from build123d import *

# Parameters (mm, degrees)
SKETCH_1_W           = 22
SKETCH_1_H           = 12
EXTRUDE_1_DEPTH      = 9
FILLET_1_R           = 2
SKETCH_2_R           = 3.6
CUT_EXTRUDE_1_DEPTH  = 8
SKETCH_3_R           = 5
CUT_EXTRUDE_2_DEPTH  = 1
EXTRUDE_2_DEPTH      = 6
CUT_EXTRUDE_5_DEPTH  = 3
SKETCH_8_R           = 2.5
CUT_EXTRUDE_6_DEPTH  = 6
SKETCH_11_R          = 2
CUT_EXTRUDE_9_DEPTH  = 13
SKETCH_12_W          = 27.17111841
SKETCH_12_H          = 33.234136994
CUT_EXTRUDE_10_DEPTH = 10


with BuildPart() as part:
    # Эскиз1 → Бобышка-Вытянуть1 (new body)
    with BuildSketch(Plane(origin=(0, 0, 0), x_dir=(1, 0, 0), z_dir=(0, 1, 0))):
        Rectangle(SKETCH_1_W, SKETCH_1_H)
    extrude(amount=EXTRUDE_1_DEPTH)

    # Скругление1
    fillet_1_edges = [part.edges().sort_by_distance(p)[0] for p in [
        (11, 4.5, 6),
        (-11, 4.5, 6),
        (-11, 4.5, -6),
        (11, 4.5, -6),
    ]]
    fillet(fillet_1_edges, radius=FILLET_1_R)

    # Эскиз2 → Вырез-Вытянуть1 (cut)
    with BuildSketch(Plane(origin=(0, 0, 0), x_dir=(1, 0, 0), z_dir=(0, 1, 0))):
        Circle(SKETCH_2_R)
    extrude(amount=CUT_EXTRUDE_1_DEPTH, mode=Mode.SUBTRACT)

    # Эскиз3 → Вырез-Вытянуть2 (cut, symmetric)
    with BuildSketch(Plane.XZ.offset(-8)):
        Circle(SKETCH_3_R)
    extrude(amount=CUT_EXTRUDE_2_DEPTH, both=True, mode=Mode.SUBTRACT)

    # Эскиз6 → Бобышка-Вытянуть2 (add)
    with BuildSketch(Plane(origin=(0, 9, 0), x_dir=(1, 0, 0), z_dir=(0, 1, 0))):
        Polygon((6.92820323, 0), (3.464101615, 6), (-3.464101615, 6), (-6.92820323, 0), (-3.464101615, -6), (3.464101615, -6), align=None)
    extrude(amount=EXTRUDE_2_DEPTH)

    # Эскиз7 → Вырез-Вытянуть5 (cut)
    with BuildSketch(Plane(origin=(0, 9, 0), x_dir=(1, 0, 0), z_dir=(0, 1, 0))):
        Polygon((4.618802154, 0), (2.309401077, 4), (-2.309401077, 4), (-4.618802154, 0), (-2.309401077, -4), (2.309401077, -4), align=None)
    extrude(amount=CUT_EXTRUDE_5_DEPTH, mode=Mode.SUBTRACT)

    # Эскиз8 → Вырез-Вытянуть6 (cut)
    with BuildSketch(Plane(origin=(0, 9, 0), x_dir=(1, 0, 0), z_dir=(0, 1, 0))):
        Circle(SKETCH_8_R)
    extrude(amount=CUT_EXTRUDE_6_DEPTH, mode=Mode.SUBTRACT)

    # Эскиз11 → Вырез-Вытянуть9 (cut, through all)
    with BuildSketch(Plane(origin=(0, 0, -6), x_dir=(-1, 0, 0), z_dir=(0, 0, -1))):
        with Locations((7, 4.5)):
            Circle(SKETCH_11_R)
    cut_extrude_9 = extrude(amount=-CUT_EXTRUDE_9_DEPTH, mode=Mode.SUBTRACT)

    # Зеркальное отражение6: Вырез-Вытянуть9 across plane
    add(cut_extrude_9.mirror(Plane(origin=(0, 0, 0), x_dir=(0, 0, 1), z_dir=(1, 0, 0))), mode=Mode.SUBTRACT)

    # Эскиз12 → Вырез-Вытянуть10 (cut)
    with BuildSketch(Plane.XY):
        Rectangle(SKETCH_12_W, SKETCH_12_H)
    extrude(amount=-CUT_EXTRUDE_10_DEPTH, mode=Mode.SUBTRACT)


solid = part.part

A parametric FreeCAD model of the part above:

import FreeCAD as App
import Part
import Sketcher
from FreeCAD import Vector
Q = App.Units.Quantity


def edges_at(feature, points):
    """Names of the edges that pass closest to the given points."""
    edges = feature.Shape.Edges
    near = lambda p: min(range(len(edges)), key=lambda i: edges[i].distToShape(Part.Vertex(*p))[0])
    return sorted({f"Edge{near(p) + 1}" for p in points})

doc = App.newDocument("Part")
body = doc.addObject("PartDesign::Body", "Body")

sketch1 = doc.addObject("Sketcher::SketchObject", "Sketch")
body.addObject(sketch1)
sketch1.AttachmentSupport = (doc.XZ_Plane, [""])
sketch1.MapMode = "FlatFace"
sketch1.addGeometry(Part.LineSegment(Vector(-11, -6, 0), Vector(-11, 6, 0)), False)
sketch1.addGeometry(Part.LineSegment(Vector(-11, 6, 0), Vector(11, 6, 0)), False)
sketch1.addGeometry(Part.LineSegment(Vector(11, 6, 0), Vector(11, -6, 0)), False)
sketch1.addGeometry(Part.LineSegment(Vector(11, -6, 0), Vector(-11, -6, 0)), False)
sketch1.addConstraint(Sketcher.Constraint("Coincident", 0, 2, 1, 1))
sketch1.addConstraint(Sketcher.Constraint("Coincident", 1, 2, 2, 1))
sketch1.addConstraint(Sketcher.Constraint("Coincident", 2, 2, 3, 1))
sketch1.addConstraint(Sketcher.Constraint("Coincident", 3, 2, 0, 1))
sketch1.addConstraint(Sketcher.Constraint("Vertical", 0))
sketch1.addConstraint(Sketcher.Constraint("Horizontal", 1))
sketch1.addConstraint(Sketcher.Constraint("Vertical", 2))
sketch1.addConstraint(Sketcher.Constraint("Horizontal", 3))
sketch1.addConstraint(Sketcher.Constraint("Symmetric", 0, 2, 2, 2, -1, 1))
sketch1.addConstraint(Sketcher.Constraint("DistanceX", 1, 1, 1, 2, 22.0))
sketch1.addConstraint(Sketcher.Constraint("DistanceY", 0, 1, 0, 2, 12.0))
pad1 = doc.addObject("PartDesign::Pad", "Pad")
body.addObject(pad1)
pad1.Profile = sketch1
pad1.Length = 9
pad1.Reversed = True
doc.recompute()

fillet = doc.addObject("PartDesign::Fillet", "Fillet")
body.addObject(fillet)
fillet.Base = (pad1, edges_at(pad1, [
    (11, 4.5, 6),
    (-11, 4.5, 6),
    (-11, 4.5, -6),
    (11, 4.5, -6),
]))
fillet.Radius = 2

sketch2 = doc.addObject("Sketcher::SketchObject", "Sketch001")
body.addObject(sketch2)
sketch2.AttachmentSupport = (doc.XZ_Plane, [""])
sketch2.MapMode = "FlatFace"
sketch2.addGeometry(Part.Circle(Vector(0, 0, 0), Vector(0, 0, 1), 3.6), False)
sketch2.addConstraint(Sketcher.Constraint("Coincident", 0, 3, -1, 1))
sketch2.addConstraint(Sketcher.Constraint("Diameter", 0, 7.2))
pocket1 = doc.addObject("PartDesign::Pocket", "Pocket")
body.addObject(pocket1)
pocket1.Profile = sketch2
pocket1.Length = 8

sketch3 = doc.addObject("Sketcher::SketchObject", "Sketch002")
body.addObject(sketch3)
sketch3.AttachmentSupport = (doc.XZ_Plane, [""])
sketch3.MapMode = "FlatFace"
sketch3.AttachmentOffset = App.Placement(Vector(0, 0, -8), App.Rotation())
sketch3.addGeometry(Part.Circle(Vector(0, 0, 0), Vector(0, 0, 1), 5), False)
sketch3.addConstraint(Sketcher.Constraint("Coincident", 0, 3, -1, 1))
sketch3.addConstraint(Sketcher.Constraint("Diameter", 0, 10.0))
pocket2 = doc.addObject("PartDesign::Pocket", "Pocket001")
body.addObject(pocket2)
pocket2.Profile = sketch3
pocket2.Length = 2
pocket2.Midplane = True

sketch4 = doc.addObject("Sketcher::SketchObject", "Sketch003")
body.addObject(sketch4)
sketch4.AttachmentSupport = (doc.XZ_Plane, [""])
sketch4.MapMode = "FlatFace"
sketch4.AttachmentOffset = App.Placement(Vector(0, 0, -9), App.Rotation())
sketch4.addGeometry(Part.LineSegment(Vector(7, 0, 0), Vector(3, -6, 0)), False)
sketch4.addGeometry(Part.LineSegment(Vector(3, -6, 0), Vector(-3, -6, 0)), False)
sketch4.addGeometry(Part.LineSegment(Vector(-3, -6, 0), Vector(-7, 0, 0)), False)
sketch4.addGeometry(Part.LineSegment(Vector(-7, 0, 0), Vector(-3, 6, 0)), False)
sketch4.addGeometry(Part.LineSegment(Vector(-3, 6, 0), Vector(3, 6, 0)), False)
sketch4.addGeometry(Part.LineSegment(Vector(3, 6, 0), Vector(7, 0, 0)), False)
sketch4.addConstraint(Sketcher.Constraint("Coincident", 0, 2, 1, 1))
sketch4.addConstraint(Sketcher.Constraint("Coincident", 1, 2, 2, 1))
sketch4.addConstraint(Sketcher.Constraint("Coincident", 2, 2, 3, 1))
sketch4.addConstraint(Sketcher.Constraint("Coincident", 3, 2, 4, 1))
sketch4.addConstraint(Sketcher.Constraint("Coincident", 4, 2, 5, 1))
sketch4.addConstraint(Sketcher.Constraint("Coincident", 5, 2, 0, 1))
sketch4.addConstraint(Sketcher.Constraint("Horizontal", 1))
sketch4.addConstraint(Sketcher.Constraint("Horizontal", 4))
sketch4.addConstraint(Sketcher.Constraint("Symmetric", 0, 2, 3, 2, -1, 1))
sketch4.addConstraint(Sketcher.Constraint("Symmetric", 2, 2, 5, 2, -1, 1))
sketch4.addConstraint(Sketcher.Constraint("PointOnObject", 2, 2, -1))
sketch4.addConstraint(Sketcher.Constraint("Parallel", 2, 5))
sketch4.addConstraint(Sketcher.Constraint("Vertical", 1, 2, 3, 2))
sketch4.addConstraint(Sketcher.Constraint("Angle", 0, Q("-120 deg")))
sketch4.addConstraint(Sketcher.Constraint("DistanceY", 0, 2, -1, 1, 6.0))
sketch4.addConstraint(Sketcher.Constraint("DistanceX", -1, 1, 0, 2, 3.464102))
pad2 = doc.addObject("PartDesign::Pad", "Pad001")
body.addObject(pad2)
pad2.Profile = sketch4
pad2.Length = 6
pad2.Reversed = True

sketch5 = doc.addObject("Sketcher::SketchObject", "Sketch004")
body.addObject(sketch5)
sketch5.AttachmentSupport = (doc.XZ_Plane, [""])
sketch5.MapMode = "FlatFace"
sketch5.AttachmentOffset = App.Placement(Vector(0, 0, -9), App.Rotation())
sketch5.addGeometry(Part.LineSegment(Vector(4.6, 0, 0), Vector(2.3, -4, 0)), False)
sketch5.addGeometry(Part.LineSegment(Vector(2.3, -4, 0), Vector(-2.3, -4, 0)), False)
sketch5.addGeometry(Part.LineSegment(Vector(-2.3, -4, 0), Vector(-4.6, 0, 0)), False)
sketch5.addGeometry(Part.LineSegment(Vector(-4.6, 0, 0), Vector(-2.3, 4, 0)), False)
sketch5.addGeometry(Part.LineSegment(Vector(-2.3, 4, 0), Vector(2.3, 4, 0)), False)
sketch5.addGeometry(Part.LineSegment(Vector(2.3, 4, 0), Vector(4.6, 0, 0)), False)
sketch5.addConstraint(Sketcher.Constraint("Coincident", 0, 2, 1, 1))
sketch5.addConstraint(Sketcher.Constraint("Coincident", 1, 2, 2, 1))
sketch5.addConstraint(Sketcher.Constraint("Coincident", 2, 2, 3, 1))
sketch5.addConstraint(Sketcher.Constraint("Coincident", 3, 2, 4, 1))
sketch5.addConstraint(Sketcher.Constraint("Coincident", 4, 2, 5, 1))
sketch5.addConstraint(Sketcher.Constraint("Coincident", 5, 2, 0, 1))
sketch5.addConstraint(Sketcher.Constraint("Horizontal", 1))
sketch5.addConstraint(Sketcher.Constraint("Horizontal", 4))
sketch5.addConstraint(Sketcher.Constraint("Symmetric", 0, 2, 3, 2, -1, 1))
sketch5.addConstraint(Sketcher.Constraint("Symmetric", 2, 2, 5, 2, -1, 1))
sketch5.addConstraint(Sketcher.Constraint("PointOnObject", 2, 2, -1))
sketch5.addConstraint(Sketcher.Constraint("Parallel", 2, 5))
sketch5.addConstraint(Sketcher.Constraint("Vertical", 1, 2, 3, 2))
sketch5.addConstraint(Sketcher.Constraint("Angle", 0, Q("-120 deg")))
sketch5.addConstraint(Sketcher.Constraint("DistanceY", 0, 2, -1, 1, 4.0))
sketch5.addConstraint(Sketcher.Constraint("DistanceX", -1, 1, 0, 2, 2.309401))
pocket3 = doc.addObject("PartDesign::Pocket", "Pocket002")
body.addObject(pocket3)
pocket3.Profile = sketch5
pocket3.Length = 3

sketch6 = doc.addObject("Sketcher::SketchObject", "Sketch005")
body.addObject(sketch6)
sketch6.AttachmentSupport = (doc.XZ_Plane, [""])
sketch6.MapMode = "FlatFace"
sketch6.AttachmentOffset = App.Placement(Vector(0, 0, -9), App.Rotation())
sketch6.addGeometry(Part.Circle(Vector(0, 0, 0), Vector(0, 0, 1), 2.5), False)
sketch6.addConstraint(Sketcher.Constraint("Coincident", 0, 3, -1, 1))
sketch6.addConstraint(Sketcher.Constraint("Diameter", 0, 5.0))
pocket4 = doc.addObject("PartDesign::Pocket", "Pocket003")
body.addObject(pocket4)
pocket4.Profile = sketch6
pocket4.Length = 6

sketch7 = doc.addObject("Sketcher::SketchObject", "Sketch006")
body.addObject(sketch7)
sketch7.AttachmentSupport = (doc.XY_Plane, [""])
sketch7.MapMode = "FlatFace"
sketch7.AttachmentOffset = App.Placement(Vector(0, 0, -6), App.Rotation())
sketch7.addGeometry(Part.Circle(Vector(-7, 4.5, 0), Vector(0, 0, 1), 2), False)
sketch7.addConstraint(Sketcher.Constraint("Diameter", 0, 4.0))
sketch7.addConstraint(Sketcher.Constraint("DistanceX", 0, 3, -1, 1, 7.0))
sketch7.addConstraint(Sketcher.Constraint("DistanceY", -1, 1, 0, 3, 4.5))
pocket5 = doc.addObject("PartDesign::Pocket", "Pocket004")
body.addObject(pocket5)
pocket5.Profile = sketch7
pocket5.Type = "ThroughAll"
pocket5.Reversed = True
doc.recompute()

mirrored = doc.addObject("PartDesign::Mirrored", "Mirrored")
body.addObject(mirrored)
mirrored.Originals = [pocket5]
mirrored.MirrorPlane = (doc.YZ_Plane, [""])
body.Tip = mirrored

sketch8 = doc.addObject("Sketcher::SketchObject", "Sketch007")
body.addObject(sketch8)
sketch8.AttachmentSupport = (doc.XY_Plane, [""])
sketch8.MapMode = "FlatFace"
sketch8.addGeometry(Part.LineSegment(Vector(-14, 17, 0), Vector(-14, -17, 0)), False)
sketch8.addGeometry(Part.LineSegment(Vector(-14, -17, 0), Vector(14, -17, 0)), False)
sketch8.addGeometry(Part.LineSegment(Vector(14, -17, 0), Vector(14, 17, 0)), False)
sketch8.addGeometry(Part.LineSegment(Vector(14, 17, 0), Vector(-14, 17, 0)), False)
sketch8.addConstraint(Sketcher.Constraint("Coincident", 0, 2, 1, 1))
sketch8.addConstraint(Sketcher.Constraint("Coincident", 1, 2, 2, 1))
sketch8.addConstraint(Sketcher.Constraint("Coincident", 2, 2, 3, 1))
sketch8.addConstraint(Sketcher.Constraint("Coincident", 3, 2, 0, 1))
sketch8.addConstraint(Sketcher.Constraint("Vertical", 0))
sketch8.addConstraint(Sketcher.Constraint("Horizontal", 1))
sketch8.addConstraint(Sketcher.Constraint("Vertical", 2))
sketch8.addConstraint(Sketcher.Constraint("Horizontal", 3))
sketch8.addConstraint(Sketcher.Constraint("Symmetric", 0, 2, 2, 2, -1, 1))
sketch8.addConstraint(Sketcher.Constraint("DistanceX", 1, 1, 1, 2, 27.171118))
sketch8.addConstraint(Sketcher.Constraint("DistanceY", 0, 2, 0, 1, 33.234137))
pocket6 = doc.addObject("PartDesign::Pocket", "Pocket005")
body.addObject(pocket6)
pocket6.Profile = sketch8
pocket6.Length = 10

doc.recompute()
